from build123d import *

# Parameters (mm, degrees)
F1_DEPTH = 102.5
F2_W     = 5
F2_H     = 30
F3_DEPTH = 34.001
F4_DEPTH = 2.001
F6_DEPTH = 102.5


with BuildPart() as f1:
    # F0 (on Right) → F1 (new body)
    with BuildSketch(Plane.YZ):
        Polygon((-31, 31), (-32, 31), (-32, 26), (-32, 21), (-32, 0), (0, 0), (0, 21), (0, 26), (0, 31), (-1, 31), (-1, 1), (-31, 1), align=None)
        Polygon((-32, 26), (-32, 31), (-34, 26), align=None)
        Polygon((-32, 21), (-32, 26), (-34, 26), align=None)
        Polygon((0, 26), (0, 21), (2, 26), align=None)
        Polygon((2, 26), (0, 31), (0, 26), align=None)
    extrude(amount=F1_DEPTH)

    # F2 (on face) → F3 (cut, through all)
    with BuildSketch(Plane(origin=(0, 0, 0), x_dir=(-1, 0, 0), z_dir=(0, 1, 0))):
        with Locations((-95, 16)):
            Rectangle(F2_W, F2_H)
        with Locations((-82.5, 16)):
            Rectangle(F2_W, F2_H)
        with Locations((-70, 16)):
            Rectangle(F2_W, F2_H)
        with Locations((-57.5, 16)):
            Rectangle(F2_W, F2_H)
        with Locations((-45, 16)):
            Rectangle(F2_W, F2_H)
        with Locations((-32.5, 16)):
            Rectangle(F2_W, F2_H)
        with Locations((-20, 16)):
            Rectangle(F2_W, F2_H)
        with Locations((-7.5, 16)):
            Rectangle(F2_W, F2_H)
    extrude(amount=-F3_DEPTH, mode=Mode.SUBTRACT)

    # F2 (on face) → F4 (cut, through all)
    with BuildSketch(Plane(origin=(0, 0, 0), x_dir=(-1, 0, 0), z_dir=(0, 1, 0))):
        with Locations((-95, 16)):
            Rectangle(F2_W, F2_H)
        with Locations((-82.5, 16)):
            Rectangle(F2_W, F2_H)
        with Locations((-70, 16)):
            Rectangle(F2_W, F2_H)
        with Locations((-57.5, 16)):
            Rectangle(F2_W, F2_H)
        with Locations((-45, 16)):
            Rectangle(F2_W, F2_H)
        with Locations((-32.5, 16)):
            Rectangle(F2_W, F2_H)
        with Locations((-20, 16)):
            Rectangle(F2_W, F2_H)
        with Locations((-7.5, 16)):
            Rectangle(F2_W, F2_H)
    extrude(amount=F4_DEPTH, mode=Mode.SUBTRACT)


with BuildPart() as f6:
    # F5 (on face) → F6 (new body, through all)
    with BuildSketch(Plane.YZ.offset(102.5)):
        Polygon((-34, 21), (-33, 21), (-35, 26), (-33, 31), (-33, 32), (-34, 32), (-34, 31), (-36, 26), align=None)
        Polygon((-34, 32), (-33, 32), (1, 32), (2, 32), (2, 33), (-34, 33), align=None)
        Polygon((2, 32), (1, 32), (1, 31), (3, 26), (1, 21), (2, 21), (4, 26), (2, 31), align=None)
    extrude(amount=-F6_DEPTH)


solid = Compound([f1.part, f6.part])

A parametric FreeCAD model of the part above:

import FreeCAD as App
import Part
import Sketcher
Q = App.Units.Quantity

doc = App.newDocument("Part")
body = doc.addObject("PartDesign::Body", "Body")

# Sketch on YZ plane
sketch1 = doc.addObject("Sketcher::SketchObject", "Sketch")
body.addObject(sketch1)
sketch1.AttachmentSupport = (doc.YZ_Plane, [""])
sketch1.MapMode = "FlatFace"
sketch1.addGeometry([
    Part.LineSegment(App.Vector(-31, 31, 0), App.Vector(-32, 31, 0)),  # 0
    Part.LineSegment(App.Vector(-32, 31, 0), App.Vector(-34, 26, 0)),  # 1
    Part.LineSegment(App.Vector(-34, 26, 0), App.Vector(-32, 21, 0)),  # 2
    Part.LineSegment(App.Vector(-32, 21, 0), App.Vector(-32, 0, 0)),  # 3
    Part.LineSegment(App.Vector(-32, 0, 0), App.Vector(0, 0, 0)),  # 4
    Part.LineSegment(App.Vector(0, 0, 0), App.Vector(0, 21, 0)),  # 5
    Part.LineSegment(App.Vector(0, 21, 0), App.Vector(2, 26, 0)),  # 6
    Part.LineSegment(App.Vector(2, 26, 0), App.Vector(0, 31, 0)),  # 7
    Part.LineSegment(App.Vector(0, 31, 0), App.Vector(-1, 31, 0)),  # 8
    Part.LineSegment(App.Vector(-1, 31, 0), App.Vector(-1, 1, 0)),  # 9
    Part.LineSegment(App.Vector(-1, 1, 0), App.Vector(-31, 1, 0)),  # 10
    Part.LineSegment(App.Vector(-31, 1, 0), App.Vector(-31, 31, 0)),  # 11
], False)
sketch1.addConstraint([
    Sketcher.Constraint("Coincident", 0, 2, 1, 1),
    Sketcher.Constraint("Coincident", 1, 2, 2, 1),
    Sketcher.Constraint("Coincident", 2, 2, 3, 1),
    Sketcher.Constraint("Coincident", 3, 2, 4, 1),
    Sketcher.Constraint("Coincident", 4, 2, 5, 1),
    Sketcher.Constraint("Coincident", 5, 2, 6, 1),
    Sketcher.Constraint("Coincident", 6, 2, 7, 1),
    Sketcher.Constraint("Coincident", 7, 2, 8, 1),
    Sketcher.Constraint("Coincident", 8, 2, 9, 1),
    Sketcher.Constraint("Coincident", 9, 2, 10, 1),
    Sketcher.Constraint("Coincident", 10, 2, 11, 1),
    Sketcher.Constraint("Coincident", 11, 2, 0, 1),
    Sketcher.Constraint("Horizontal", 0),
    Sketcher.Constraint("Vertical", 3),
    Sketcher.Constraint("Horizontal", 4),
    Sketcher.Constraint("Vertical", 5),
    Sketcher.Constraint("Horizontal", 8),
    Sketcher.Constraint("Vertical", 9),
    Sketcher.Constraint("Horizontal", 10),
    Sketcher.Constraint("Vertical", 11),
    Sketcher.Constraint("Coincident", 4, 2, -1, 1),
    Sketcher.Constraint("PointOnObject", 7, 2, -2),
    Sketcher.Constraint("Parallel", 1, 6),
    Sketcher.Constraint("Parallel", 2, 7),
    Sketcher.Constraint("Horizontal", 2, 2, 5, 2),
    Sketcher.Constraint("Horizontal", 1, 2, 6, 2),
    Sketcher.Constraint("Horizontal", 0, 2, 7, 2),
    Sketcher.Constraint("Vertical", 0, 2, 2, 2),
    Sketcher.Constraint("Equal", 0, 8),
    Sketcher.Constraint("Equal", 10, 9),
    Sketcher.Constraint("DistanceX", 0, 2, 0, 1, Q("1 mm")),
    Sketcher.Constraint("DistanceX", 4, 1, 4, 2, Q("32 mm")),
    Sketcher.Constraint("DistanceY", 3, 2, 3, 1, Q("21 mm")),
    Sketcher.Constraint("DistanceY", -1, 1, 0, 2, Q("31 mm")),
    Sketcher.Constraint("DistanceX", 1, 2, -1, 1, Q("34 mm")),
])
pad1 = doc.addObject("PartDesign::Pad", "Pad")
body.addObject(pad1)
pad1.Profile = sketch1
pad1.Length = 102.5

# Sketch on XZ plane
sketch2 = doc.addObject("Sketcher::SketchObject", "Sketch001")
body.addObject(sketch2)
sketch2.AttachmentSupport = (doc.XZ_Plane, [""])
sketch2.MapMode = "FlatFace"
sketch2.addGeometry([
    Part.LineSegment(App.Vector(98, 31, 0), App.Vector(98, 1, 0)),  # 0
    Part.LineSegment(App.Vector(98, 1, 0), App.Vector(92, 1, 0)),  # 1
    Part.LineSegment(App.Vector(92, 1, 0), App.Vector(92, 31, 0)),  # 2
    Part.LineSegment(App.Vector(92, 31, 0), App.Vector(98, 31, 0)),  # 3
    Part.LineSegment(App.Vector(85, 31, 0), App.Vector(85, 1, 0)),  # 4
    Part.LineSegment(App.Vector(85, 1, 0), App.Vector(80, 1, 0)),  # 5
    Part.LineSegment(App.Vector(80, 1, 0), App.Vector(80, 31, 0)),  # 6
    Part.LineSegment(App.Vector(80, 31, 0), App.Vector(85, 31, 0)),  # 7
    Part.LineSegment(App.Vector(72, 31, 0), App.Vector(72, 1, 0)),  # 8
    Part.LineSegment(App.Vector(72, 1, 0), App.Vector(68, 1, 0)),  # 9
    Part.LineSegment(App.Vector(68, 1, 0), App.Vector(68, 31, 0)),  # 10
    Part.LineSegment(App.Vector(68, 31, 0), App.Vector(72, 31, 0)),  # 11
    Part.LineSegment(App.Vector(60, 31, 0), App.Vector(60, 1, 0)),  # 12
    Part.LineSegment(App.Vector(60, 1, 0), App.Vector(55, 1, 0)),  # 13
    Part.LineSegment(App.Vector(55, 1, 0), App.Vector(55, 31, 0)),  # 14
    Part.LineSegment(App.Vector(55, 31, 0), App.Vector(60, 31, 0)),  # 15
    Part.LineSegment(App.Vector(48, 31, 0), App.Vector(48, 1, 0)),  # 16
    Part.LineSegment(App.Vector(48, 1, 0), App.Vector(42, 1, 0)),  # 17
    Part.LineSegment(App.Vector(42, 1, 0), App.Vector(42, 31, 0)),  # 18
    Part.LineSegment(App.Vector(42, 31, 0), App.Vector(48, 31, 0)),  # 19
    Part.LineSegment(App.Vector(35, 31, 0), App.Vector(35, 1, 0)),  # 20
    Part.LineSegment(App.Vector(35, 1, 0), App.Vector(30, 1, 0)),  # 21
    Part.LineSegment(App.Vector(30, 1, 0), App.Vector(30, 31, 0)),  # 22
    Part.LineSegment(App.Vector(30, 31, 0), App.Vector(35, 31, 0)),  # 23
    Part.LineSegment(App.Vector(22, 31, 0), App.Vector(22, 1, 0)),  # 24
    Part.LineSegment(App.Vector(22, 1, 0), App.Vector(18, 1, 0)),  # 25
    Part.LineSegment(App.Vector(18, 1, 0), App.Vector(18, 31, 0)),  # 26
    Part.LineSegment(App.Vector(18, 31, 0), App.Vector(22, 31, 0)),  # 27
    Part.LineSegment(App.Vector(10, 31, 0), App.Vector(10, 1, 0)),  # 28
    Part.LineSegment(App.Vector(10, 1, 0), App.Vector(5, 1, 0)),  # 29
    Part.LineSegment(App.Vector(5, 1, 0), App.Vector(5, 31, 0)),  # 30
    Part.LineSegment(App.Vector(5, 31, 0), App.Vector(10, 31, 0)),  # 31
], False)
sketch2.addConstraint([
    Sketcher.Constraint("Coincident", 0, 2, 1, 1),
    Sketcher.Constraint("Coincident", 1, 2, 2, 1),
    Sketcher.Constraint("Coincident", 2, 2, 3, 1),
    Sketcher.Constraint("Coincident", 3, 2, 0, 1),
    Sketcher.Constraint("Coincident", 4, 2, 5, 1),
    Sketcher.Constraint("Coincident", 5, 2, 6, 1),
    Sketcher.Constraint("Coincident", 6, 2, 7, 1),
    Sketcher.Constraint("Coincident", 7, 2, 4, 1),
    Sketcher.Constraint("Coincident", 8, 2, 9, 1),
    Sketcher.Constraint("Coincident", 9, 2, 10, 1),
    Sketcher.Constraint("Coincident", 10, 2, 11, 1),
    Sketcher.Constraint("Coincident", 11, 2, 8, 1),
    Sketcher.Constraint("Coincident", 12, 2, 13, 1),
    Sketcher.Constraint("Coincident", 13, 2, 14, 1),
    Sketcher.Constraint("Coincident", 14, 2, 15, 1),
    Sketcher.Constraint("Coincident", 15, 2, 12, 1),
    Sketcher.Constraint("Coincident", 16, 2, 17, 1),
    Sketcher.Constraint("Coincident", 17, 2, 18, 1),
    Sketcher.Constraint("Coincident", 18, 2, 19, 1),
    Sketcher.Constraint("Coincident", 19, 2, 16, 1),
    Sketcher.Constraint("Coincident", 20, 2, 21, 1),
    Sketcher.Constraint("Coincident", 21, 2, 22, 1),
    Sketcher.Constraint("Coincident", 22, 2, 23, 1),
    Sketcher.Constraint("Coincident", 23, 2, 20, 1),
    Sketcher.Constraint("Coincident", 24, 2, 25, 1),
    Sketcher.Constraint("Coincident", 25, 2, 26, 1),
    Sketcher.Constraint("Coincident", 26, 2, 27, 1),
    Sketcher.Constraint("Coincident", 27, 2, 24, 1),
    Sketcher.Constraint("Coincident", 28, 2, 29, 1),
    Sketcher.Constraint("Coincident", 29, 2, 30, 1),
    Sketcher.Constraint("Coincident", 30, 2, 31, 1),
    Sketcher.Constraint("Coincident", 31, 2, 28, 1),
    Sketcher.Constraint("Vertical", 0),
    Sketcher.Constraint("Horizontal", 1),
    Sketcher.Constraint("Vertical", 2),
    Sketcher.Constraint("Horizontal", 3),
    Sketcher.Constraint("Vertical", 4),
    Sketcher.Constraint("Horizontal", 5),
    Sketcher.Constraint("Vertical", 6),
    Sketcher.Constraint("Horizontal", 7),
    Sketcher.Constraint("Vertical", 8),
    Sketcher.Constraint("Horizontal", 9),
    Sketcher.Constraint("Vertical", 10),
    Sketcher.Constraint("Horizontal", 11),
    Sketcher.Constraint("Vertical", 12),
    Sketcher.Constraint("Horizontal", 13),
    Sketcher.Constraint("Vertical", 14),
    Sketcher.Constraint("Horizontal", 15),
    Sketcher.Constraint("Vertical", 16),
    Sketcher.Constraint("Horizontal", 17),
    Sketcher.Constraint("Vertical", 18),
    Sketcher.Constraint("Horizontal", 19),
    Sketcher.Constraint("Vertical", 20),
    Sketcher.Constraint("Horizontal", 21),
    Sketcher.Constraint("Vertical", 22),
    Sketcher.Constraint("Horizontal", 23),
    Sketcher.Constraint("Vertical", 24),
    Sketcher.Constraint("Horizontal", 25),
    Sketcher.Constraint("Vertical", 26),
    Sketcher.Constraint("Horizontal", 27),
    Sketcher.Constraint("Vertical", 28),
    Sketcher.Constraint("Horizontal", 29),
    Sketcher.Constraint("Vertical", 30),
    Sketcher.Constraint("Horizontal", 31),
    Sketcher.Constraint("Horizontal", 1, 2, 4, 2),
    Sketcher.Constraint("Horizontal", 3, 2, 6, 2),
    Sketcher.Constraint("Horizontal", 5, 2, 8, 2),
    Sketcher.Constraint("Horizontal", 7, 2, 10, 2),
    Sketcher.Constraint("Horizontal", 9, 2, 12, 2),
    Sketcher.Constraint("Horizontal", 11, 2, 14, 2),
    Sketcher.Constraint("Horizontal", 13, 2, 16, 2),
    Sketcher.Constraint("Horizontal", 15, 2, 18, 2),
    Sketcher.Constraint("Horizontal", 17, 2, 20, 2),
    Sketcher.Constraint("Horizontal", 19, 2, 22, 2),
    Sketcher.Constraint("Horizontal", 21, 2, 24, 2),
    Sketcher.Constraint("Horizontal", 23, 2, 26, 2),
    Sketcher.Constraint("Horizontal", 25, 2, 28, 2),
    Sketcher.Constraint("Horizontal", 27, 2, 30, 2),
    Sketcher.Constraint("Equal", 3, 5),
    Sketcher.Constraint("Equal", 7, 9),
    Sketcher.Constraint("Equal", 11, 13),
    Sketcher.Constraint("Equal", 15, 17),
    Sketcher.Constraint("Equal", 19, 21),
    Sketcher.Constraint("Equal", 23, 25),
    Sketcher.Constraint("Equal", 27, 29),
    Sketcher.Constraint("DistanceX", 1, 2, 1, 1, Q("5 mm")),
    Sketcher.Constraint("DistanceY", 0, 2, 0, 1, Q("30 mm")),
    Sketcher.Constraint("DistanceY", -1, 1, 0, 2, Q("1 mm")),
    Sketcher.Constraint("DistanceX", -1, 1, 4, 2, Q("85 mm")),
    Sketcher.Constraint("DistanceX", -1, 1, 12, 2, Q("60 mm")),
    Sketcher.Constraint("DistanceX", -1, 1, 20, 2, Q("35 mm")),
    Sketcher.Constraint("DistanceX", -1, 1, 28, 2, Q("10 mm")),
    Sketcher.Constraint("DistanceX", 8, 2, 1, 2, Q("20 mm")),
    Sketcher.Constraint("DistanceX", 16, 2, 9, 2, Q("20 mm")),
    Sketcher.Constraint("DistanceX", 24, 2, 17, 2, Q("20 mm")),
    Sketcher.Constraint("DistanceX", -1, 1, 0, 2, Q("97.5 mm")),
])
pocket1 = doc.addObject("PartDesign::Pocket", "Pocket")
body.addObject(pocket1)
pocket1.Profile = sketch2
pocket1.Type = "ThroughAll"
pocket1.Reversed = True

# Sketch on XZ plane
sketch3 = doc.addObject("Sketcher::SketchObject", "Sketch002")
body.addObject(sketch3)
sketch3.AttachmentSupport = (doc.XZ_Plane, [""])
sketch3.MapMode = "FlatFace"
sketch3.addGeometry([
    Part.LineSegment(App.Vector(98, 31, 0), App.Vector(98, 1, 0)),  # 0
    Part.LineSegment(App.Vector(98, 1, 0), App.Vector(92, 1, 0)),  # 1
    Part.LineSegment(App.Vector(92, 1, 0), App.Vector(92, 31, 0)),  # 2
    Part.LineSegment(App.Vector(92, 31, 0), App.Vector(98, 31, 0)),  # 3
    Part.LineSegment(App.Vector(85, 31, 0), App.Vector(85, 1, 0)),  # 4
    Part.LineSegment(App.Vector(85, 1, 0), App.Vector(80, 1, 0)),  # 5
    Part.LineSegment(App.Vector(80, 1, 0), App.Vector(80, 31, 0)),  # 6
    Part.LineSegment(App.Vector(80, 31, 0), App.Vector(85, 31, 0)),  # 7
    Part.LineSegment(App.Vector(72, 31, 0), App.Vector(72, 1, 0)),  # 8
    Part.LineSegment(App.Vector(72, 1, 0), App.Vector(68, 1, 0)),  # 9
    Part.LineSegment(App.Vector(68, 1, 0), App.Vector(68, 31, 0)),  # 10
    Part.LineSegment(App.Vector(68, 31, 0), App.Vector(72, 31, 0)),  # 11
    Part.LineSegment(App.Vector(60, 31, 0), App.Vector(60, 1, 0)),  # 12
    Part.LineSegment(App.Vector(60, 1, 0), App.Vector(55, 1, 0)),  # 13
    Part.LineSegment(App.Vector(55, 1, 0), App.Vector(55, 31, 0)),  # 14
    Part.LineSegment(App.Vector(55, 31, 0), App.Vector(60, 31, 0)),  # 15
    Part.LineSegment(App.Vector(48, 31, 0), App.Vector(48, 1, 0)),  # 16
    Part.LineSegment(App.Vector(48, 1, 0), App.Vector(42, 1, 0)),  # 17
    Part.LineSegment(App.Vector(42, 1, 0), App.Vector(42, 31, 0)),  # 18
    Part.LineSegment(App.Vector(42, 31, 0), App.Vector(48, 31, 0)),  # 19
    Part.LineSegment(App.Vector(35, 31, 0), App.Vector(35, 1, 0)),  # 20
    Part.LineSegment(App.Vector(35, 1, 0), App.Vector(30, 1, 0)),  # 21
    Part.LineSegment(App.Vector(30, 1, 0), App.Vector(30, 31, 0)),  # 22
    Part.LineSegment(App.Vector(30, 31, 0), App.Vector(35, 31, 0)),  # 23
    Part.LineSegment(App.Vector(22, 31, 0), App.Vector(22, 1, 0)),  # 24
    Part.LineSegment(App.Vector(22, 1, 0), App.Vector(18, 1, 0)),  # 25
    Part.LineSegment(App.Vector(18, 1, 0), App.Vector(18, 31, 0)),  # 26
    Part.LineSegment(App.Vector(18, 31, 0), App.Vector(22, 31, 0)),  # 27
    Part.LineSegment(App.Vector(10, 31, 0), App.Vector(10, 1, 0)),  # 28
    Part.LineSegment(App.Vector(10, 1, 0), App.Vector(5, 1, 0)),  # 29
    Part.LineSegment(App.Vector(5, 1, 0), App.Vector(5, 31, 0)),  # 30
    Part.LineSegment(App.Vector(5, 31, 0), App.Vector(10, 31, 0)),  # 31
], False)
sketch3.addConstraint([
    Sketcher.Constraint("Coincident", 0, 2, 1, 1),
    Sketcher.Constraint("Coincident", 1, 2, 2, 1),
    Sketcher.Constraint("Coincident", 2, 2, 3, 1),
    Sketcher.Constraint("Coincident", 3, 2, 0, 1),
    Sketcher.Constraint("Coincident", 4, 2, 5, 1),
    Sketcher.Constraint("Coincident", 5, 2, 6, 1),
    Sketcher.Constraint("Coincident", 6, 2, 7, 1),
    Sketcher.Constraint("Coincident", 7, 2, 4, 1),
    Sketcher.Constraint("Coincident", 8, 2, 9, 1),
    Sketcher.Constraint("Coincident", 9, 2, 10, 1),
    Sketcher.Constraint("Coincident", 10, 2, 11, 1),
    Sketcher.Constraint("Coincident", 11, 2, 8, 1),
    Sketcher.Constraint("Coincident", 12, 2, 13, 1),
    Sketcher.Constraint("Coincident", 13, 2, 14, 1),
    Sketcher.Constraint("Coincident", 14, 2, 15, 1),
    Sketcher.Constraint("Coincident", 15, 2, 12, 1),
    Sketcher.Constraint("Coincident", 16, 2, 17, 1),
    Sketcher.Constraint("Coincident", 17, 2, 18, 1),
    Sketcher.Constraint("Coincident", 18, 2, 19, 1),
    Sketcher.Constraint("Coincident", 19, 2, 16, 1),
    Sketcher.Constraint("Coincident", 20, 2, 21, 1),
    Sketcher.Constraint("Coincident", 21, 2, 22, 1),
    Sketcher.Constraint("Coincident", 22, 2, 23, 1),
    Sketcher.Constraint("Coincident", 23, 2, 20, 1),
    Sketcher.Constraint("Coincident", 24, 2, 25, 1),
    Sketcher.Constraint("Coincident", 25, 2, 26, 1),
    Sketcher.Constraint("Coincident", 26, 2, 27, 1),
    Sketcher.Constraint("Coincident", 27, 2, 24, 1),
    Sketcher.Constraint("Coincident", 28, 2, 29, 1),
    Sketcher.Constraint("Coincident", 29, 2, 30, 1),
    Sketcher.Constraint("Coincident", 30, 2, 31, 1),
    Sketcher.Constraint("Coincident", 31, 2, 28, 1),
    Sketcher.Constraint("Vertical", 0),
    Sketcher.Constraint("Horizontal", 1),
    Sketcher.Constraint("Vertical", 2),
    Sketcher.Constraint("Horizontal", 3),
    Sketcher.Constraint("Vertical", 4),
    Sketcher.Constraint("Horizontal", 5),
    Sketcher.Constraint("Vertical", 6),
    Sketcher.Constraint("Horizontal", 7),
    Sketcher.Constraint("Vertical", 8),
    Sketcher.Constraint("Horizontal", 9),
    Sketcher.Constraint("Vertical", 10),
    Sketcher.Constraint("Horizontal", 11),
    Sketcher.Constraint("Vertical", 12),
    Sketcher.Constraint("Horizontal", 13),
    Sketcher.Constraint("Vertical", 14),
    Sketcher.Constraint("Horizontal", 15),
    Sketcher.Constraint("Vertical", 16),
    Sketcher.Constraint("Horizontal", 17),
    Sketcher.Constraint("Vertical", 18),
    Sketcher.Constraint("Horizontal", 19),
    Sketcher.Constraint("Vertical", 20),
    Sketcher.Constraint("Horizontal", 21),
    Sketcher.Constraint("Vertical", 22),
    Sketcher.Constraint("Horizontal", 23),
    Sketcher.Constraint("Vertical", 24),
    Sketcher.Constraint("Horizontal", 25),
    Sketcher.Constraint("Vertical", 26),
    Sketcher.Constraint("Horizontal", 27),
    Sketcher.Constraint("Vertical", 28),
    Sketcher.Constraint("Horizontal", 29),
    Sketcher.Constraint("Vertical", 30),
    Sketcher.Constraint("Horizontal", 31),
    Sketcher.Constraint("Horizontal", 1, 2, 4, 2),
    Sketcher.Constraint("Horizontal", 3, 2, 6, 2),
    Sketcher.Constraint("Horizontal", 5, 2, 8, 2),
    Sketcher.Constraint("Horizontal", 7, 2, 10, 2),
    Sketcher.Constraint("Horizontal", 9, 2, 12, 2),
    Sketcher.Constraint("Horizontal", 11, 2, 14, 2),
    Sketcher.Constraint("Horizontal", 13, 2, 16, 2),
    Sketcher.Constraint("Horizontal", 15, 2, 18, 2),
    Sketcher.Constraint("Horizontal", 17, 2, 20, 2),
    Sketcher.Constraint("Horizontal", 19, 2, 22, 2),
    Sketcher.Constraint("Horizontal", 21, 2, 24, 2),
    Sketcher.Constraint("Horizontal", 23, 2, 26, 2),
    Sketcher.Constraint("Horizontal", 25, 2, 28, 2),
    Sketcher.Constraint("Horizontal", 27, 2, 30, 2),
    Sketcher.Constraint("Equal", 3, 5),
    Sketcher.Constraint("Equal", 7, 9),
    Sketcher.Constraint("Equal", 11, 13),
    Sketcher.Constraint("Equal", 15, 17),
    Sketcher.Constraint("Equal", 19, 21),
    Sketcher.Constraint("Equal", 23, 25),
    Sketcher.Constraint("Equal", 27, 29),
    Sketcher.Constraint("DistanceX", 1, 2, 1, 1, Q("5 mm")),
    Sketcher.Constraint("DistanceY", 0, 2, 0, 1, Q("30 mm")),
    Sketcher.Constraint("DistanceY", -1, 1, 0, 2, Q("1 mm")),
    Sketcher.Constraint("DistanceX", -1, 1, 4, 2, Q("85 mm")),
    Sketcher.Constraint("DistanceX", -1, 1, 12, 2, Q("60 mm")),
    Sketcher.Constraint("DistanceX", -1, 1, 20, 2, Q("35 mm")),
    Sketcher.Constraint("DistanceX", -1, 1, 28, 2, Q("10 mm")),
    Sketcher.Constraint("DistanceX", 8, 2, 1, 2, Q("20 mm")),
    Sketcher.Constraint("DistanceX", 16, 2, 9, 2, Q("20 mm")),
    Sketcher.Constraint("DistanceX", 24, 2, 17, 2, Q("20 mm")),
    Sketcher.Constraint("DistanceX", -1, 1, 0, 2, Q("97.5 mm")),
])
pocket2 = doc.addObject("PartDesign::Pocket", "Pocket001")
body.addObject(pocket2)
pocket2.Profile = sketch3
pocket2.Type = "ThroughAll"
body2 = doc.addObject("PartDesign::Body", "Body001")

# Sketch on YZ plane
sketch4 = doc.addObject("Sketcher::SketchObject", "Sketch003")
body2.addObject(sketch4)
sketch4.AttachmentSupport = (doc.getObject("YZ_Plane001"), [""])
sketch4.MapMode = "FlatFace"
sketch4.AttachmentOffset = App.Placement(App.Vector(0, 0, 102.5), App.Rotation())
sketch4.addGeometry([
    Part.LineSegment(App.Vector(-34, 21, 0), App.Vector(-33, 21, 0)),  # 0
    Part.LineSegment(App.Vector(-33, 21, 0), App.Vector(-35, 26, 0)),  # 1
    Part.LineSegment(App.Vector(-35, 26, 0), App.Vector(-33, 31, 0)),  # 2
    Part.LineSegment(App.Vector(-33, 31, 0), App.Vector(-33, 32, 0)),  # 3
    Part.LineSegment(App.Vector(-33, 32, 0), App.Vector(1, 32, 0)),  # 4
    Part.LineSegment(App.Vector(1, 32, 0), App.Vector(1, 31, 0)),  # 5
    Part.LineSegment(App.Vector(1, 31, 0), App.Vector(3, 26, 0)),  # 6
    Part.LineSegment(App.Vector(3, 26, 0), App.Vector(1, 21, 0)),  # 7
    Part.LineSegment(App.Vector(1, 21, 0), App.Vector(2, 21, 0)),  # 8
    Part.LineSegment(App.Vector(2, 21, 0), App.Vector(4, 26, 0)),  # 9
    Part.LineSegment(App.Vector(4, 26, 0), App.Vector(2, 31, 0)),  # 10
    Part.LineSegment(App.Vector(2, 31, 0), App.Vector(2, 33, 0)),  # 11
    Part.LineSegment(App.Vector(2, 33, 0), App.Vector(-34, 33, 0)),  # 12
    Part.LineSegment(App.Vector(-34, 33, 0), App.Vector(-34, 31, 0)),  # 13
    Part.LineSegment(App.Vector(-34, 31, 0), App.Vector(-36, 26, 0)),  # 14
    Part.LineSegment(App.Vector(-36, 26, 0), App.Vector(-34, 21, 0)),  # 15
], False)
sketch4.addConstraint([
    Sketcher.Constraint("Coincident", 0, 2, 1, 1),
    Sketcher.Constraint("Coincident", 1, 2, 2, 1),
    Sketcher.Constraint("Coincident", 2, 2, 3, 1),
    Sketcher.Constraint("Coincident", 3, 2, 4, 1),
    Sketcher.Constraint("Coincident", 4, 2, 5, 1),
    Sketcher.Constraint("Coincident", 5, 2, 6, 1),
    Sketcher.Constraint("Coincident", 6, 2, 7, 1),
    Sketcher.Constraint("Coincident", 7, 2, 8, 1),
    Sketcher.Constraint("Coincident", 8, 2, 9, 1),
    Sketcher.Constraint("Coincident", 9, 2, 10, 1),
    Sketcher.Constraint("Coincident", 10, 2, 11, 1),
    Sketcher.Constraint("Coincident", 11, 2, 12, 1),
    Sketcher.Constraint("Coincident", 12, 2, 13, 1),
    Sketcher.Constraint("Coincident", 13, 2, 14, 1),
    Sketcher.Constraint("Coincident", 14, 2, 15, 1),
    Sketcher.Constraint("Coincident", 15, 2, 0, 1),
    Sketcher.Constraint("Horizontal", 0),
    Sketcher.Constraint("Vertical", 3),
    Sketcher.Constraint("Horizontal", 4),
    Sketcher.Constraint("Vertical", 5),
    Sketcher.Constraint("Horizontal", 8),
    Sketcher.Constraint("Vertical", 11),
    Sketcher.Constraint("Horizontal", 12),
    Sketcher.Constraint("Vertical", 13),
    Sketcher.Constraint("Parallel", 1, 6),
    Sketcher.Constraint("Parallel", 2, 7),
    Sketcher.Constraint("Parallel", 7, 9),
    Sketcher.Constraint("Parallel", 6, 10),
    Sketcher.Constraint("Parallel", 9, 14),
    Sketcher.Constraint("Parallel", 10, 15),
    Sketcher.Constraint("Horizontal", 2, 2, 5, 2),
    Sketcher.Constraint("Horizontal", 1, 2, 6, 2),
    Sketcher.Constraint("Horizontal", 0, 2, 7, 2),
    Sketcher.Constraint("Horizontal", 6, 2, 9, 2),
    Sketcher.Constraint("Horizontal", 5, 2, 10, 2),
    Sketcher.Constraint("Horizontal", 10, 2, 13, 2),
    Sketcher.Constraint("Horizontal", 9, 2, 14, 2),
    Sketcher.Constraint("Vertical", 0, 2, 2, 2),
    Sketcher.Constraint("Vertical", 5, 2, 7, 2),
    Sketcher.Constraint("Equal", 0, 8),
    Sketcher.Constraint("Equal", 8, 3),
    Sketcher.Constraint("DistanceX", 0, 1, 0, 2, Q("1 mm")),
    Sketcher.Constraint("DistanceX", 4, 1, 4, 2, Q("34 mm")),
    Sketcher.Constraint("DistanceY", 11, 1, 11, 2, Q("2 mm")),
    Sketcher.Constraint("DistanceX", 0, 2, -1, 1, Q("33 mm")),
    Sketcher.Constraint("DistanceY", -1, 1, 0, 2, Q("21 mm")),
    Sketcher.Constraint("DistanceX", 1, 2, -1, 1, Q("35 mm")),
    Sketcher.Constraint("DistanceY", -1, 1, 1, 2, Q("26 mm")),
])
pad2 = doc.addObject("PartDesign::Pad", "Pad001")
body2.addObject(pad2)
pad2.Profile = sketch4
pad2.Length = 102.5
pad2.Reversed = True

doc.recompute()
